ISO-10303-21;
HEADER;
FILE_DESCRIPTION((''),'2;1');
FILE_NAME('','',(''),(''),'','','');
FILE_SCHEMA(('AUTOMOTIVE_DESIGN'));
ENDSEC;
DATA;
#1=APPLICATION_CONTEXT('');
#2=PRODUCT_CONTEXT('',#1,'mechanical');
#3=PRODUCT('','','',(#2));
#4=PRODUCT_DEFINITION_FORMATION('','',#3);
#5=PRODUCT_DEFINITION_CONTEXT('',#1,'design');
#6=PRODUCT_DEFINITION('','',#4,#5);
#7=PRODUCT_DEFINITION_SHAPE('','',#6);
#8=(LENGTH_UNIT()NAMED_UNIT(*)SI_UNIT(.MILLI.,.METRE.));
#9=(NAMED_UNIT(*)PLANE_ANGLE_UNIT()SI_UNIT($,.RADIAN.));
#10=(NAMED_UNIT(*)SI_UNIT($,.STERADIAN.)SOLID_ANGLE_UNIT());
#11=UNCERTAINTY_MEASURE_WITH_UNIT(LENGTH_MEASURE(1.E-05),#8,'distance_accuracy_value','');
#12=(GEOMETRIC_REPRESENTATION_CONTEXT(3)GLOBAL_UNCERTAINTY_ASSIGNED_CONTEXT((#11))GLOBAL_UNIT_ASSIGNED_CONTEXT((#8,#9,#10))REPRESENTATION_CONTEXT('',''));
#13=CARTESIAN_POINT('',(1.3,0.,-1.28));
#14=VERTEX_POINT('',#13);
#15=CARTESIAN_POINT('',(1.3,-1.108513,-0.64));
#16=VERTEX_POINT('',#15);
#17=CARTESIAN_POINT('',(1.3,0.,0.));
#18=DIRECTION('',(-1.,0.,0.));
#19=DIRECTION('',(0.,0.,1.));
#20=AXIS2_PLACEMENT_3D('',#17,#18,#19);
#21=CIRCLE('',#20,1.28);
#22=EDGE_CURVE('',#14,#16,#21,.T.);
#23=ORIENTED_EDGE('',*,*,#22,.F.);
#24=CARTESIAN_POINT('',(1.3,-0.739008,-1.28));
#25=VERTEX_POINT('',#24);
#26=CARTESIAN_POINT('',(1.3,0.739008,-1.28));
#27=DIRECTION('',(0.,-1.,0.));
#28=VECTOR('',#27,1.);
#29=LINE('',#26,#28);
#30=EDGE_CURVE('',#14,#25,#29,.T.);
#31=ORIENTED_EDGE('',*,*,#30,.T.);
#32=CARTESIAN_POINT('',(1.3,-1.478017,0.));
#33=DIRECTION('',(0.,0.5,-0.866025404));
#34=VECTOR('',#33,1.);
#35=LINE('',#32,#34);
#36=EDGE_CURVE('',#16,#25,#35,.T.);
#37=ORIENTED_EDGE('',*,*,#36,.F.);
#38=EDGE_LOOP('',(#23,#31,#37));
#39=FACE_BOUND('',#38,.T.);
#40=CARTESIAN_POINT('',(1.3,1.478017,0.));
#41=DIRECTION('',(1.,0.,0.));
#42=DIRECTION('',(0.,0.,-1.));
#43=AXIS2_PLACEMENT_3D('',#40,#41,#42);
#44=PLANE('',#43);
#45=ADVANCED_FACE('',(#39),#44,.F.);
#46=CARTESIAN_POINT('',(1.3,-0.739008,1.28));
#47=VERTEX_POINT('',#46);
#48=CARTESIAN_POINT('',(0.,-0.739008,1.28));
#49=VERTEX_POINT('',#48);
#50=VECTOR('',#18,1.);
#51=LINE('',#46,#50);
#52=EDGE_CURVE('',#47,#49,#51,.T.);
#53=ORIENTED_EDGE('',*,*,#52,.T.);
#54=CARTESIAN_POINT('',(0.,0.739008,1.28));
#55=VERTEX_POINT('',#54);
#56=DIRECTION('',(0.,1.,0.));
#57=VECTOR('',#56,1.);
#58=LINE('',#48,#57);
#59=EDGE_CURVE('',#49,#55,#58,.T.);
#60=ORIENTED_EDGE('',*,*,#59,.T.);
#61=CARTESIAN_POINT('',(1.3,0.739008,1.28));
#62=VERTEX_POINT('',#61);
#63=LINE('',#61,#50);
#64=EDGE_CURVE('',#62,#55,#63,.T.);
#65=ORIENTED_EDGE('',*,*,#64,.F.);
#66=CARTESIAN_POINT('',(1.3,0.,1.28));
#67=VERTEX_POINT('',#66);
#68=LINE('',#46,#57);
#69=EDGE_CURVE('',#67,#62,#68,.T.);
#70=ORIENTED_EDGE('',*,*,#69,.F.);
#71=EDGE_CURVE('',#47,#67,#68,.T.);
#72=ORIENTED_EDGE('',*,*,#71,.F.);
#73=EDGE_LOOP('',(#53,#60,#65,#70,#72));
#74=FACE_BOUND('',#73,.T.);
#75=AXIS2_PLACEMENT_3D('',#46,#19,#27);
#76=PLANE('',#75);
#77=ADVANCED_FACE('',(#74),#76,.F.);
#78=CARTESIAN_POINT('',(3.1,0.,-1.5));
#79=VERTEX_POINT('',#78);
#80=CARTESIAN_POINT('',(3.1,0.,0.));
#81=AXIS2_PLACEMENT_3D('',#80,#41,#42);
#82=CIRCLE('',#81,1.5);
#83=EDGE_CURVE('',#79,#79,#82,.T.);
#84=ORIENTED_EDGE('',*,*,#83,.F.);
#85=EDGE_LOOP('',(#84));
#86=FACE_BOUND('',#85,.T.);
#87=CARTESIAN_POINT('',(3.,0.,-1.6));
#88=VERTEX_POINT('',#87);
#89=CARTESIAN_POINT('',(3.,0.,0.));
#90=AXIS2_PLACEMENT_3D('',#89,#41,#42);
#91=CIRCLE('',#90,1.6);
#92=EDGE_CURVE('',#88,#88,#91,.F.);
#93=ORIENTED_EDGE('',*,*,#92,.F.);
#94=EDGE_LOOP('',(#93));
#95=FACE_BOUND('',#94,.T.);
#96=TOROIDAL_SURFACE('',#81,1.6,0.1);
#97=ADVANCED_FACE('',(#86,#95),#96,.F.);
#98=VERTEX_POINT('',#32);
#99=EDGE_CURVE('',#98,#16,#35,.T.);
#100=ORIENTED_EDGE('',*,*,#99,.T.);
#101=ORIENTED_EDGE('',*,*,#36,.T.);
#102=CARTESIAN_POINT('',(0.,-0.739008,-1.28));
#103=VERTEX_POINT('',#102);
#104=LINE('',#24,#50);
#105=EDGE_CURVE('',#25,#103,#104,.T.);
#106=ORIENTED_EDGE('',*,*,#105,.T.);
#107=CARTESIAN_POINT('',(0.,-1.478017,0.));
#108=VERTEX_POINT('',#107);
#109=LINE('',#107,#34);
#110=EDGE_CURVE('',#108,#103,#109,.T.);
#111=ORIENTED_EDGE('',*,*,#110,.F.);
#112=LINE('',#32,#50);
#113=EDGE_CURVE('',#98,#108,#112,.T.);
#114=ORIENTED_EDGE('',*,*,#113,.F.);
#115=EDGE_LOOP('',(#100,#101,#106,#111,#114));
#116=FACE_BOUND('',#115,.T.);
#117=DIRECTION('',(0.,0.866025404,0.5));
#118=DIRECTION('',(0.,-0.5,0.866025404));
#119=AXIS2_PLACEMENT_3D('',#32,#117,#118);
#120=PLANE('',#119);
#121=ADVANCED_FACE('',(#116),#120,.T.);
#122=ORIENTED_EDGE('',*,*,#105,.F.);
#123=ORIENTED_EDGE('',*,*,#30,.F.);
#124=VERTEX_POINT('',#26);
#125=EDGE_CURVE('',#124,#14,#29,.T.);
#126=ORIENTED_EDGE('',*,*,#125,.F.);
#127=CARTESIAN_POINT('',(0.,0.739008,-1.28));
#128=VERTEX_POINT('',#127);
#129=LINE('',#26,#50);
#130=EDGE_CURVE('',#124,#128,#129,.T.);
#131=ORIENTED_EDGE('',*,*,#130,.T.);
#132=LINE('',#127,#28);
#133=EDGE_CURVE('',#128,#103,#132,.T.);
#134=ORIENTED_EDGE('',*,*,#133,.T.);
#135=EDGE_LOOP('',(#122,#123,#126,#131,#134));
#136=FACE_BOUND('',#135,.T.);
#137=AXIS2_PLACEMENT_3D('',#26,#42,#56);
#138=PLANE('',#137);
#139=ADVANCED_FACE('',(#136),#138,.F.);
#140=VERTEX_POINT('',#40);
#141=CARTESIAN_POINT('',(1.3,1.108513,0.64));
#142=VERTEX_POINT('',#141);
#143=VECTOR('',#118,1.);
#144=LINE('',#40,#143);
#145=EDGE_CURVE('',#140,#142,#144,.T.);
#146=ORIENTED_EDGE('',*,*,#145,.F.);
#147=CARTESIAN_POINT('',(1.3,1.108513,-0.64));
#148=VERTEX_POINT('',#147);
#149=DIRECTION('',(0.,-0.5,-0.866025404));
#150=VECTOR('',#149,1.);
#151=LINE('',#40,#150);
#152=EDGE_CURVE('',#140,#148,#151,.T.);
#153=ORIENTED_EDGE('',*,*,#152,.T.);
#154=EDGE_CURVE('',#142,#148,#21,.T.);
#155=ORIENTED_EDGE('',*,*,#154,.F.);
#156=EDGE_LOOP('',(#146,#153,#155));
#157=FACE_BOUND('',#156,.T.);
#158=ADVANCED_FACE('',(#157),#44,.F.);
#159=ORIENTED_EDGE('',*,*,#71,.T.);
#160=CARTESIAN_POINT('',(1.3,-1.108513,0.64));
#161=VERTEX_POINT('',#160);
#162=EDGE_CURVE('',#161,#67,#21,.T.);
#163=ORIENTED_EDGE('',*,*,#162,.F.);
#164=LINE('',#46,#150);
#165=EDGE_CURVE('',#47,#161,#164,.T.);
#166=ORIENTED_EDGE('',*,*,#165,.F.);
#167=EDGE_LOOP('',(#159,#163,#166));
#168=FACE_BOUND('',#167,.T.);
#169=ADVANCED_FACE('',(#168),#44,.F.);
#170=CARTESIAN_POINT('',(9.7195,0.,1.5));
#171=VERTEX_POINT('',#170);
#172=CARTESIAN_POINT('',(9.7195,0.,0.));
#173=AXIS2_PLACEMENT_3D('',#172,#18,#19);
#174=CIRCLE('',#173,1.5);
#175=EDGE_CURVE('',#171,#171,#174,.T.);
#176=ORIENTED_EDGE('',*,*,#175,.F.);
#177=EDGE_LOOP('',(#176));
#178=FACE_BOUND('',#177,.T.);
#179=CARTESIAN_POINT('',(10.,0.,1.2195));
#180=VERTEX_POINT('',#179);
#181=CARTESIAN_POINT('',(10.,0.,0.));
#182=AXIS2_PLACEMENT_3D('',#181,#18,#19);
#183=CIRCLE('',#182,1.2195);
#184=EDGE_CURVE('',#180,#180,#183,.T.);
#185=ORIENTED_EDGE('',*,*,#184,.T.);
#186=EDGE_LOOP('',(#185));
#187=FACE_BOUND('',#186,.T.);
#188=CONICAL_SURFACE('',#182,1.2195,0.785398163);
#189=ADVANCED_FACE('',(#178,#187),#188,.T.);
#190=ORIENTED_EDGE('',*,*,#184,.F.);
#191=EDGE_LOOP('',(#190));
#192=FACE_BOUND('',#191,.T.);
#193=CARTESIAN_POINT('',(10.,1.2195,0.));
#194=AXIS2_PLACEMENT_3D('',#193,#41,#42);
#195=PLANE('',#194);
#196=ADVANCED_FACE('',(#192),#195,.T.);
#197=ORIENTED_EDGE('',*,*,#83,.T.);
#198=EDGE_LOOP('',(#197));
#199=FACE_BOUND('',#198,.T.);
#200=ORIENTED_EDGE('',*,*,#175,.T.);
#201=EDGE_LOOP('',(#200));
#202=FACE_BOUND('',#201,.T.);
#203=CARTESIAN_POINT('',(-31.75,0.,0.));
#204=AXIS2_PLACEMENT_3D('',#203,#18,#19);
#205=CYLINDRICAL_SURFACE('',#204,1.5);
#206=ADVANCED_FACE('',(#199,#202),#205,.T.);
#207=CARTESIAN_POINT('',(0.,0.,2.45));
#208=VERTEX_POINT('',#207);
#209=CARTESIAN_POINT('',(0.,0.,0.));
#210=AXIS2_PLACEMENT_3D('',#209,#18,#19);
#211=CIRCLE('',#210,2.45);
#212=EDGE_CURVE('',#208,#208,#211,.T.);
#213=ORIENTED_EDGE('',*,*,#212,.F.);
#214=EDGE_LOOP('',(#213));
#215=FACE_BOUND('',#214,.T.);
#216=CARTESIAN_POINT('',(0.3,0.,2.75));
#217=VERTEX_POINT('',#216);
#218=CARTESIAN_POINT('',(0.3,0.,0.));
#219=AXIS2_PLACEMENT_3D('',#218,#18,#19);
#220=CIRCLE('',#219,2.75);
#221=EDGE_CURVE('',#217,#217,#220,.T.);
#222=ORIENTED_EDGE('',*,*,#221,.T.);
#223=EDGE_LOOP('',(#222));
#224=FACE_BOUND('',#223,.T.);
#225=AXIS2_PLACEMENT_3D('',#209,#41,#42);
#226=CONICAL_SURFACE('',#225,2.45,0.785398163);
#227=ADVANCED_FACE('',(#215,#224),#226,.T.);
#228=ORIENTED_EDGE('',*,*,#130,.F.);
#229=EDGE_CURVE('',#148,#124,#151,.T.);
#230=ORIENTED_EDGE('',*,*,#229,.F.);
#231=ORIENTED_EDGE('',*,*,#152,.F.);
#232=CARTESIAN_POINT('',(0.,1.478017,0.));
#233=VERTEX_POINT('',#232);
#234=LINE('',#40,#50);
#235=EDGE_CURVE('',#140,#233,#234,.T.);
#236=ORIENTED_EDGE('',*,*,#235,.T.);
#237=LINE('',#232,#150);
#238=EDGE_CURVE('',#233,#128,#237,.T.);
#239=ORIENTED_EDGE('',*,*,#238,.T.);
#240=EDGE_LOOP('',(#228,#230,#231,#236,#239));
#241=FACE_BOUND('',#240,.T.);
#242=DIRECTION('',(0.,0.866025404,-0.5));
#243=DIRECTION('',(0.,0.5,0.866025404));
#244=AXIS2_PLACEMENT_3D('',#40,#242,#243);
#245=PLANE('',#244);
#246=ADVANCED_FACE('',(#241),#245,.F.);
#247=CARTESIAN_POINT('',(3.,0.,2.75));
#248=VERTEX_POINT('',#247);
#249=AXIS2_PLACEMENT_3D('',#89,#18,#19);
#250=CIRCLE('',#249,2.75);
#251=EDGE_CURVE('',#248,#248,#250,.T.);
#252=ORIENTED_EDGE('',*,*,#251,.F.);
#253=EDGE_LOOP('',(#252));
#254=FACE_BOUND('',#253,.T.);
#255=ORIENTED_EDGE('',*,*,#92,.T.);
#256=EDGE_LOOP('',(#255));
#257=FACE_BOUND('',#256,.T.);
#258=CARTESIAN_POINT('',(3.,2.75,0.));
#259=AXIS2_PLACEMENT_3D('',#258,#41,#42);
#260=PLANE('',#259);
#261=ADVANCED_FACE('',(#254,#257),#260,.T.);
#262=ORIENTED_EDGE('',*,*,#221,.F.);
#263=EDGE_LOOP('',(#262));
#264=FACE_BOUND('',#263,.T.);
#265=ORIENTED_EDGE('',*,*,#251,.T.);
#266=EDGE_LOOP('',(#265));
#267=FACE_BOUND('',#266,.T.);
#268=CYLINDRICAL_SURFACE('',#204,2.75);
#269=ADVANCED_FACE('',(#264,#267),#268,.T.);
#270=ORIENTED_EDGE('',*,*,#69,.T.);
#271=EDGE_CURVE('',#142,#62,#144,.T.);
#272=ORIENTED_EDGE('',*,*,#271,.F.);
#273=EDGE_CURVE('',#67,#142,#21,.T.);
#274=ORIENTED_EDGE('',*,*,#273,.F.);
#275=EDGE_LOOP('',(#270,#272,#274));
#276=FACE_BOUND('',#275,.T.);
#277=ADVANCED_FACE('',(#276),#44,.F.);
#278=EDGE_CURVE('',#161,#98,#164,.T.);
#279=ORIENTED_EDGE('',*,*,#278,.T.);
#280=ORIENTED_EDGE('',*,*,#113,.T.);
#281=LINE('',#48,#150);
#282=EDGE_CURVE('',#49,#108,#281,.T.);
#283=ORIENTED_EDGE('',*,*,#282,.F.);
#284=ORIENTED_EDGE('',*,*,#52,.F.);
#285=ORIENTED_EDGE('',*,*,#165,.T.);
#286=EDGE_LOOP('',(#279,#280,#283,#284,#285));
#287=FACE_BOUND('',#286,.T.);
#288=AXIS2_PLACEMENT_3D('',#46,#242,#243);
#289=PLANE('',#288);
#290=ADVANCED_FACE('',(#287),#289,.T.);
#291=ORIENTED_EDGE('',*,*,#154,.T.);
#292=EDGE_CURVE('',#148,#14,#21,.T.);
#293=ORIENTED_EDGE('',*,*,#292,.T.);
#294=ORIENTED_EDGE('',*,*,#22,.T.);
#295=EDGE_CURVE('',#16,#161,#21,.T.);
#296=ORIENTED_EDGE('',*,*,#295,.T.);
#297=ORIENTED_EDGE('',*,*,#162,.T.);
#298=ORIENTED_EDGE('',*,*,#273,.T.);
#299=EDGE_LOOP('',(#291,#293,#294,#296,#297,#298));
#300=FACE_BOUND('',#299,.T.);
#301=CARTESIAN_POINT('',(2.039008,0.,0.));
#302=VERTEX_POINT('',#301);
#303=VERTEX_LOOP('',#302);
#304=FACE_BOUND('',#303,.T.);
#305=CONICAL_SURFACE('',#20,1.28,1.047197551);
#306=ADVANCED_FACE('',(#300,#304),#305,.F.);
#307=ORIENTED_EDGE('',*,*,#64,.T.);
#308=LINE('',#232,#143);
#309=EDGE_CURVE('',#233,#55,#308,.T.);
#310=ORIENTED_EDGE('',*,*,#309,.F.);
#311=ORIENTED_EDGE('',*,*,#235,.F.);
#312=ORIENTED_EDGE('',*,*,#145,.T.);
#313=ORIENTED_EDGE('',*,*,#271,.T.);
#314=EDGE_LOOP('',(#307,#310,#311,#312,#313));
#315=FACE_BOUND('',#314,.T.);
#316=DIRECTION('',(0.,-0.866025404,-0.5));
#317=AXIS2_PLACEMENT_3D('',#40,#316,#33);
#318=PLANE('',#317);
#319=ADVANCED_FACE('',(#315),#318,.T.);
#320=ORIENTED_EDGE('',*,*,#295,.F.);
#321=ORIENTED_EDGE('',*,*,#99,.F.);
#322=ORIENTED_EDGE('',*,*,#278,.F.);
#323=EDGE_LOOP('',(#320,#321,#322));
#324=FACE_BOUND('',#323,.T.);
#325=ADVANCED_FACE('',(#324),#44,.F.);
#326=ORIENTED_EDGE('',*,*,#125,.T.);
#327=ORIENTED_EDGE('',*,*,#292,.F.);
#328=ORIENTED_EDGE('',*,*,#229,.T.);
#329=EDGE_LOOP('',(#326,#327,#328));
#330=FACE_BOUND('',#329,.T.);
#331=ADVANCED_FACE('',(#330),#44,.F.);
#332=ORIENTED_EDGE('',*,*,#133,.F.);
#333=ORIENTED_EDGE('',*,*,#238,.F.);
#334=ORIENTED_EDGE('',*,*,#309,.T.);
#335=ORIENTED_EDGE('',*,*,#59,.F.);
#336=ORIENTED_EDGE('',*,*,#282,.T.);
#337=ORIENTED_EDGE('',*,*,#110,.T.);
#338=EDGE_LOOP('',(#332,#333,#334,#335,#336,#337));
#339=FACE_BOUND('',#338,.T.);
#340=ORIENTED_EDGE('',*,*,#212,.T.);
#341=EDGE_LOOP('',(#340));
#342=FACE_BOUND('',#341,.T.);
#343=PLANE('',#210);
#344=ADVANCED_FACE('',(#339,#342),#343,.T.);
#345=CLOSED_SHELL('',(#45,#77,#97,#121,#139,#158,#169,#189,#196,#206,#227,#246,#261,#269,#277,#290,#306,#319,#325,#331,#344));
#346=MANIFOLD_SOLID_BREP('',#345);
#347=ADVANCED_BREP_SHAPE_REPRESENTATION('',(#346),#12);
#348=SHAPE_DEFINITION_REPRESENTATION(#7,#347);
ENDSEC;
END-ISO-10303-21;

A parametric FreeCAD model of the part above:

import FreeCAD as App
import Part
import Sketcher

V = App.Vector
Q = App.Units.Quantity


def edges_at(feature, points):
    """Names of the edges that pass closest to the given points."""
    edges = feature.Shape.Edges
    near = lambda p: min(range(len(edges)), key=lambda i: edges[i].distToShape(Part.Vertex(*p))[0])
    return sorted({f"Edge{near(p) + 1}" for p in points})

doc = App.newDocument("Part")
body = doc.addObject("PartDesign::Body", "Body")

sketch1 = body.newObject("Sketcher::SketchObject", "Sketch")
sketch1.AttachmentSupport = (doc.getObject("XY_Plane"), [""])
sketch1.MapMode = "FlatFace"
sketch1.addGeometry(Part.LineSegment(V(0, 2.45, 0), V(0, 0, 0)), False)
sketch1.addGeometry(Part.LineSegment(V(0, 0, 0), V(10, 0, 0)), False)
sketch1.addGeometry(Part.LineSegment(V(10, 0, 0), V(10, 1.22, 0)), False)
sketch1.addGeometry(Part.LineSegment(V(10, 1.22, 0), V(9.72, 1.5, 0)), False)
sketch1.addGeometry(Part.LineSegment(V(9.72, 1.5, 0), V(3, 1.5, 0)), False)
sketch1.addGeometry(Part.LineSegment(V(3, 1.5, 0), V(3, 2.75, 0)), False)
sketch1.addGeometry(Part.LineSegment(V(3, 2.75, 0), V(0.3, 2.75, 0)), False)
sketch1.addGeometry(Part.LineSegment(V(0.3, 2.75, 0), V(0, 2.45, 0)), False)
sketch1.addConstraint(Sketcher.Constraint("Coincident", 0, 2, 1, 1))
sketch1.addConstraint(Sketcher.Constraint("Coincident", 1, 2, 2, 1))
sketch1.addConstraint(Sketcher.Constraint("Coincident", 2, 2, 3, 1))
sketch1.addConstraint(Sketcher.Constraint("Coincident", 3, 2, 4, 1))
sketch1.addConstraint(Sketcher.Constraint("Coincident", 4, 2, 5, 1))
sketch1.addConstraint(Sketcher.Constraint("Coincident", 5, 2, 6, 1))
sketch1.addConstraint(Sketcher.Constraint("Coincident", 6, 2, 7, 1))
sketch1.addConstraint(Sketcher.Constraint("Coincident", 7, 2, 0, 1))
sketch1.addConstraint(Sketcher.Constraint("Vertical", 0))
sketch1.addConstraint(Sketcher.Constraint("Horizontal", 1))
sketch1.addConstraint(Sketcher.Constraint("Vertical", 2))
sketch1.addConstraint(Sketcher.Constraint("Horizontal", 4))
sketch1.addConstraint(Sketcher.Constraint("Vertical", 5))
sketch1.addConstraint(Sketcher.Constraint("Horizontal", 6))
sketch1.addConstraint(Sketcher.Constraint("Coincident", 0, 2, -1, 1))
sketch1.addConstraint(Sketcher.Constraint("Perpendicular", 3, 7))
sketch1.addConstraint(Sketcher.Constraint("DistanceX", 1, 1, 1, 2, Q("10 mm")))
sketch1.addConstraint(Sketcher.Constraint("Angle", 3, Q("135 deg")))
sketch1.addConstraint(Sketcher.Constraint("DistanceX", 6, 2, 6, 1, Q("2.7 mm")))
sketch1.addConstraint(Sketcher.Constraint("DistanceX", -1, 1, 4, 2, Q("3 mm")))
sketch1.addConstraint(Sketcher.Constraint("DistanceY", 0, 2, 0, 1, Q("2.45 mm")))
sketch1.addConstraint(Sketcher.Constraint("DistanceY", 5, 1, 5, 2, Q("1.25 mm")))
sketch1.addConstraint(Sketcher.Constraint("DistanceX", 4, 2, 4, 1, Q("6.7195 mm")))
revolution = body.newObject("PartDesign::Revolution", "Revolution")
revolution.Profile = sketch1
revolution.ReferenceAxis = (sketch1, ["H_Axis"])
revolution.Angle = 360
doc.recompute()

fillet = body.newObject("PartDesign::Fillet", "Fillet")
fillet.Base = (revolution, edges_at(revolution, [(3, -1.5, 0)]))
fillet.Radius = 0.1

sketch2 = body.newObject("Sketcher::SketchObject", "Sketch001")
sketch2.AttachmentSupport = (doc.getObject("XY_Plane"), [""])
sketch2.MapMode = "FlatFace"
sketch2.addGeometry(Part.LineSegment(V(1.3, 1.3, 0), V(0, 1.3, 0)), False)
sketch2.addGeometry(Part.LineSegment(V(0, 1.3, 0), V(0, 0, 0)), False)
sketch2.addGeometry(Part.LineSegment(V(0, 0, 0), V(2, 0, 0)), False)
sketch2.addGeometry(Part.LineSegment(V(2, 0, 0), V(1.3, 1.3, 0)), False)
sketch2.addConstraint(Sketcher.Constraint("Coincident", 0, 2, 1, 1))
sketch2.addConstraint(Sketcher.Constraint("Coincident", 1, 2, 2, 1))
sketch2.addConstraint(Sketcher.Constraint("Coincident", 2, 2, 3, 1))
sketch2.addConstraint(Sketcher.Constraint("Coincident", 3, 2, 0, 1))
sketch2.addConstraint(Sketcher.Constraint("Horizontal", 0))
sketch2.addConstraint(Sketcher.Constraint("Vertical", 1))
sketch2.addConstraint(Sketcher.Constraint("Horizontal", 2))
sketch2.addConstraint(Sketcher.Constraint("Coincident", 1, 2, -1, 1))
sketch2.addConstraint(Sketcher.Constraint("Angle", 3, Q("120 deg")))
sketch2.addConstraint(Sketcher.Constraint("DistanceX", 0, 2, 0, 1, Q("1.3 mm")))
sketch2.addConstraint(Sketcher.Constraint("DistanceY", 1, 2, 1, 1, Q("1.28 mm")))
groove = body.newObject("PartDesign::Groove", "Groove")
groove.Profile = sketch2
groove.ReferenceAxis = (sketch2, ["H_Axis"])
groove.Angle = 360

sketch3 = body.newObject("Sketcher::SketchObject", "Sketch002")
sketch3.AttachmentSupport = (doc.getObject("YZ_Plane"), [""])
sketch3.MapMode = "FlatFace"
sketch3.addGeometry(Part.LineSegment(V(1.5, 0, 0), V(0.7, -1.3, 0)), False)
sketch3.addGeometry(Part.LineSegment(V(0.7, -1.3, 0), V(-0.7, -1.3, 0)), False)
sketch3.addGeometry(Part.LineSegment(V(-0.7, -1.3, 0), V(-1.5, 0, 0)), False)
sketch3.addGeometry(Part.LineSegment(V(-1.5, 0, 0), V(-0.7, 1.3, 0)), False)
sketch3.addGeometry(Part.LineSegment(V(-0.7, 1.3, 0), V(0.7, 1.3, 0)), False)
sketch3.addGeometry(Part.LineSegment(V(0.7, 1.3, 0), V(1.5, 0, 0)), False)
sketch3.addConstraint(Sketcher.Constraint("Coincident", 0, 2, 1, 1))
sketch3.addConstraint(Sketcher.Constraint("Coincident", 1, 2, 2, 1))
sketch3.addConstraint(Sketcher.Constraint("Coincident", 2, 2, 3, 1))
sketch3.addConstraint(Sketcher.Constraint("Coincident", 3, 2, 4, 1))
sketch3.addConstraint(Sketcher.Constraint("Coincident", 4, 2, 5, 1))
sketch3.addConstraint(Sketcher.Constraint("Coincident", 5, 2, 0, 1))
sketch3.addConstraint(Sketcher.Constraint("Horizontal", 1))
sketch3.addConstraint(Sketcher.Constraint("Horizontal", 4))
sketch3.addConstraint(Sketcher.Constraint("Symmetric", 0, 2, 3, 2, -1, 1))
sketch3.addConstraint(Sketcher.Constraint("Symmetric", 2, 2, 5, 2, -1, 1))
sketch3.addConstraint(Sketcher.Constraint("PointOnObject", 2, 2, -1))
sketch3.addConstraint(Sketcher.Constraint("Parallel", 2, 5))
sketch3.addConstraint(Sketcher.Constraint("Vertical", 1, 2, 3, 2))
sketch3.addConstraint(Sketcher.Constraint("Angle", 0, Q("-120 deg")))
sketch3.addConstraint(Sketcher.Constraint("DistanceY", 0, 2, -1, 1, Q("1.28 mm")))
sketch3.addConstraint(Sketcher.Constraint("DistanceX", 1, 2, 1, 1, Q("1.478017 mm")))
pocket1 = body.newObject("PartDesign::Pocket", "Pocket")
pocket1.Profile = sketch3
pocket1.Length = 1.3
pocket1.Reversed = True

doc.recompute()
